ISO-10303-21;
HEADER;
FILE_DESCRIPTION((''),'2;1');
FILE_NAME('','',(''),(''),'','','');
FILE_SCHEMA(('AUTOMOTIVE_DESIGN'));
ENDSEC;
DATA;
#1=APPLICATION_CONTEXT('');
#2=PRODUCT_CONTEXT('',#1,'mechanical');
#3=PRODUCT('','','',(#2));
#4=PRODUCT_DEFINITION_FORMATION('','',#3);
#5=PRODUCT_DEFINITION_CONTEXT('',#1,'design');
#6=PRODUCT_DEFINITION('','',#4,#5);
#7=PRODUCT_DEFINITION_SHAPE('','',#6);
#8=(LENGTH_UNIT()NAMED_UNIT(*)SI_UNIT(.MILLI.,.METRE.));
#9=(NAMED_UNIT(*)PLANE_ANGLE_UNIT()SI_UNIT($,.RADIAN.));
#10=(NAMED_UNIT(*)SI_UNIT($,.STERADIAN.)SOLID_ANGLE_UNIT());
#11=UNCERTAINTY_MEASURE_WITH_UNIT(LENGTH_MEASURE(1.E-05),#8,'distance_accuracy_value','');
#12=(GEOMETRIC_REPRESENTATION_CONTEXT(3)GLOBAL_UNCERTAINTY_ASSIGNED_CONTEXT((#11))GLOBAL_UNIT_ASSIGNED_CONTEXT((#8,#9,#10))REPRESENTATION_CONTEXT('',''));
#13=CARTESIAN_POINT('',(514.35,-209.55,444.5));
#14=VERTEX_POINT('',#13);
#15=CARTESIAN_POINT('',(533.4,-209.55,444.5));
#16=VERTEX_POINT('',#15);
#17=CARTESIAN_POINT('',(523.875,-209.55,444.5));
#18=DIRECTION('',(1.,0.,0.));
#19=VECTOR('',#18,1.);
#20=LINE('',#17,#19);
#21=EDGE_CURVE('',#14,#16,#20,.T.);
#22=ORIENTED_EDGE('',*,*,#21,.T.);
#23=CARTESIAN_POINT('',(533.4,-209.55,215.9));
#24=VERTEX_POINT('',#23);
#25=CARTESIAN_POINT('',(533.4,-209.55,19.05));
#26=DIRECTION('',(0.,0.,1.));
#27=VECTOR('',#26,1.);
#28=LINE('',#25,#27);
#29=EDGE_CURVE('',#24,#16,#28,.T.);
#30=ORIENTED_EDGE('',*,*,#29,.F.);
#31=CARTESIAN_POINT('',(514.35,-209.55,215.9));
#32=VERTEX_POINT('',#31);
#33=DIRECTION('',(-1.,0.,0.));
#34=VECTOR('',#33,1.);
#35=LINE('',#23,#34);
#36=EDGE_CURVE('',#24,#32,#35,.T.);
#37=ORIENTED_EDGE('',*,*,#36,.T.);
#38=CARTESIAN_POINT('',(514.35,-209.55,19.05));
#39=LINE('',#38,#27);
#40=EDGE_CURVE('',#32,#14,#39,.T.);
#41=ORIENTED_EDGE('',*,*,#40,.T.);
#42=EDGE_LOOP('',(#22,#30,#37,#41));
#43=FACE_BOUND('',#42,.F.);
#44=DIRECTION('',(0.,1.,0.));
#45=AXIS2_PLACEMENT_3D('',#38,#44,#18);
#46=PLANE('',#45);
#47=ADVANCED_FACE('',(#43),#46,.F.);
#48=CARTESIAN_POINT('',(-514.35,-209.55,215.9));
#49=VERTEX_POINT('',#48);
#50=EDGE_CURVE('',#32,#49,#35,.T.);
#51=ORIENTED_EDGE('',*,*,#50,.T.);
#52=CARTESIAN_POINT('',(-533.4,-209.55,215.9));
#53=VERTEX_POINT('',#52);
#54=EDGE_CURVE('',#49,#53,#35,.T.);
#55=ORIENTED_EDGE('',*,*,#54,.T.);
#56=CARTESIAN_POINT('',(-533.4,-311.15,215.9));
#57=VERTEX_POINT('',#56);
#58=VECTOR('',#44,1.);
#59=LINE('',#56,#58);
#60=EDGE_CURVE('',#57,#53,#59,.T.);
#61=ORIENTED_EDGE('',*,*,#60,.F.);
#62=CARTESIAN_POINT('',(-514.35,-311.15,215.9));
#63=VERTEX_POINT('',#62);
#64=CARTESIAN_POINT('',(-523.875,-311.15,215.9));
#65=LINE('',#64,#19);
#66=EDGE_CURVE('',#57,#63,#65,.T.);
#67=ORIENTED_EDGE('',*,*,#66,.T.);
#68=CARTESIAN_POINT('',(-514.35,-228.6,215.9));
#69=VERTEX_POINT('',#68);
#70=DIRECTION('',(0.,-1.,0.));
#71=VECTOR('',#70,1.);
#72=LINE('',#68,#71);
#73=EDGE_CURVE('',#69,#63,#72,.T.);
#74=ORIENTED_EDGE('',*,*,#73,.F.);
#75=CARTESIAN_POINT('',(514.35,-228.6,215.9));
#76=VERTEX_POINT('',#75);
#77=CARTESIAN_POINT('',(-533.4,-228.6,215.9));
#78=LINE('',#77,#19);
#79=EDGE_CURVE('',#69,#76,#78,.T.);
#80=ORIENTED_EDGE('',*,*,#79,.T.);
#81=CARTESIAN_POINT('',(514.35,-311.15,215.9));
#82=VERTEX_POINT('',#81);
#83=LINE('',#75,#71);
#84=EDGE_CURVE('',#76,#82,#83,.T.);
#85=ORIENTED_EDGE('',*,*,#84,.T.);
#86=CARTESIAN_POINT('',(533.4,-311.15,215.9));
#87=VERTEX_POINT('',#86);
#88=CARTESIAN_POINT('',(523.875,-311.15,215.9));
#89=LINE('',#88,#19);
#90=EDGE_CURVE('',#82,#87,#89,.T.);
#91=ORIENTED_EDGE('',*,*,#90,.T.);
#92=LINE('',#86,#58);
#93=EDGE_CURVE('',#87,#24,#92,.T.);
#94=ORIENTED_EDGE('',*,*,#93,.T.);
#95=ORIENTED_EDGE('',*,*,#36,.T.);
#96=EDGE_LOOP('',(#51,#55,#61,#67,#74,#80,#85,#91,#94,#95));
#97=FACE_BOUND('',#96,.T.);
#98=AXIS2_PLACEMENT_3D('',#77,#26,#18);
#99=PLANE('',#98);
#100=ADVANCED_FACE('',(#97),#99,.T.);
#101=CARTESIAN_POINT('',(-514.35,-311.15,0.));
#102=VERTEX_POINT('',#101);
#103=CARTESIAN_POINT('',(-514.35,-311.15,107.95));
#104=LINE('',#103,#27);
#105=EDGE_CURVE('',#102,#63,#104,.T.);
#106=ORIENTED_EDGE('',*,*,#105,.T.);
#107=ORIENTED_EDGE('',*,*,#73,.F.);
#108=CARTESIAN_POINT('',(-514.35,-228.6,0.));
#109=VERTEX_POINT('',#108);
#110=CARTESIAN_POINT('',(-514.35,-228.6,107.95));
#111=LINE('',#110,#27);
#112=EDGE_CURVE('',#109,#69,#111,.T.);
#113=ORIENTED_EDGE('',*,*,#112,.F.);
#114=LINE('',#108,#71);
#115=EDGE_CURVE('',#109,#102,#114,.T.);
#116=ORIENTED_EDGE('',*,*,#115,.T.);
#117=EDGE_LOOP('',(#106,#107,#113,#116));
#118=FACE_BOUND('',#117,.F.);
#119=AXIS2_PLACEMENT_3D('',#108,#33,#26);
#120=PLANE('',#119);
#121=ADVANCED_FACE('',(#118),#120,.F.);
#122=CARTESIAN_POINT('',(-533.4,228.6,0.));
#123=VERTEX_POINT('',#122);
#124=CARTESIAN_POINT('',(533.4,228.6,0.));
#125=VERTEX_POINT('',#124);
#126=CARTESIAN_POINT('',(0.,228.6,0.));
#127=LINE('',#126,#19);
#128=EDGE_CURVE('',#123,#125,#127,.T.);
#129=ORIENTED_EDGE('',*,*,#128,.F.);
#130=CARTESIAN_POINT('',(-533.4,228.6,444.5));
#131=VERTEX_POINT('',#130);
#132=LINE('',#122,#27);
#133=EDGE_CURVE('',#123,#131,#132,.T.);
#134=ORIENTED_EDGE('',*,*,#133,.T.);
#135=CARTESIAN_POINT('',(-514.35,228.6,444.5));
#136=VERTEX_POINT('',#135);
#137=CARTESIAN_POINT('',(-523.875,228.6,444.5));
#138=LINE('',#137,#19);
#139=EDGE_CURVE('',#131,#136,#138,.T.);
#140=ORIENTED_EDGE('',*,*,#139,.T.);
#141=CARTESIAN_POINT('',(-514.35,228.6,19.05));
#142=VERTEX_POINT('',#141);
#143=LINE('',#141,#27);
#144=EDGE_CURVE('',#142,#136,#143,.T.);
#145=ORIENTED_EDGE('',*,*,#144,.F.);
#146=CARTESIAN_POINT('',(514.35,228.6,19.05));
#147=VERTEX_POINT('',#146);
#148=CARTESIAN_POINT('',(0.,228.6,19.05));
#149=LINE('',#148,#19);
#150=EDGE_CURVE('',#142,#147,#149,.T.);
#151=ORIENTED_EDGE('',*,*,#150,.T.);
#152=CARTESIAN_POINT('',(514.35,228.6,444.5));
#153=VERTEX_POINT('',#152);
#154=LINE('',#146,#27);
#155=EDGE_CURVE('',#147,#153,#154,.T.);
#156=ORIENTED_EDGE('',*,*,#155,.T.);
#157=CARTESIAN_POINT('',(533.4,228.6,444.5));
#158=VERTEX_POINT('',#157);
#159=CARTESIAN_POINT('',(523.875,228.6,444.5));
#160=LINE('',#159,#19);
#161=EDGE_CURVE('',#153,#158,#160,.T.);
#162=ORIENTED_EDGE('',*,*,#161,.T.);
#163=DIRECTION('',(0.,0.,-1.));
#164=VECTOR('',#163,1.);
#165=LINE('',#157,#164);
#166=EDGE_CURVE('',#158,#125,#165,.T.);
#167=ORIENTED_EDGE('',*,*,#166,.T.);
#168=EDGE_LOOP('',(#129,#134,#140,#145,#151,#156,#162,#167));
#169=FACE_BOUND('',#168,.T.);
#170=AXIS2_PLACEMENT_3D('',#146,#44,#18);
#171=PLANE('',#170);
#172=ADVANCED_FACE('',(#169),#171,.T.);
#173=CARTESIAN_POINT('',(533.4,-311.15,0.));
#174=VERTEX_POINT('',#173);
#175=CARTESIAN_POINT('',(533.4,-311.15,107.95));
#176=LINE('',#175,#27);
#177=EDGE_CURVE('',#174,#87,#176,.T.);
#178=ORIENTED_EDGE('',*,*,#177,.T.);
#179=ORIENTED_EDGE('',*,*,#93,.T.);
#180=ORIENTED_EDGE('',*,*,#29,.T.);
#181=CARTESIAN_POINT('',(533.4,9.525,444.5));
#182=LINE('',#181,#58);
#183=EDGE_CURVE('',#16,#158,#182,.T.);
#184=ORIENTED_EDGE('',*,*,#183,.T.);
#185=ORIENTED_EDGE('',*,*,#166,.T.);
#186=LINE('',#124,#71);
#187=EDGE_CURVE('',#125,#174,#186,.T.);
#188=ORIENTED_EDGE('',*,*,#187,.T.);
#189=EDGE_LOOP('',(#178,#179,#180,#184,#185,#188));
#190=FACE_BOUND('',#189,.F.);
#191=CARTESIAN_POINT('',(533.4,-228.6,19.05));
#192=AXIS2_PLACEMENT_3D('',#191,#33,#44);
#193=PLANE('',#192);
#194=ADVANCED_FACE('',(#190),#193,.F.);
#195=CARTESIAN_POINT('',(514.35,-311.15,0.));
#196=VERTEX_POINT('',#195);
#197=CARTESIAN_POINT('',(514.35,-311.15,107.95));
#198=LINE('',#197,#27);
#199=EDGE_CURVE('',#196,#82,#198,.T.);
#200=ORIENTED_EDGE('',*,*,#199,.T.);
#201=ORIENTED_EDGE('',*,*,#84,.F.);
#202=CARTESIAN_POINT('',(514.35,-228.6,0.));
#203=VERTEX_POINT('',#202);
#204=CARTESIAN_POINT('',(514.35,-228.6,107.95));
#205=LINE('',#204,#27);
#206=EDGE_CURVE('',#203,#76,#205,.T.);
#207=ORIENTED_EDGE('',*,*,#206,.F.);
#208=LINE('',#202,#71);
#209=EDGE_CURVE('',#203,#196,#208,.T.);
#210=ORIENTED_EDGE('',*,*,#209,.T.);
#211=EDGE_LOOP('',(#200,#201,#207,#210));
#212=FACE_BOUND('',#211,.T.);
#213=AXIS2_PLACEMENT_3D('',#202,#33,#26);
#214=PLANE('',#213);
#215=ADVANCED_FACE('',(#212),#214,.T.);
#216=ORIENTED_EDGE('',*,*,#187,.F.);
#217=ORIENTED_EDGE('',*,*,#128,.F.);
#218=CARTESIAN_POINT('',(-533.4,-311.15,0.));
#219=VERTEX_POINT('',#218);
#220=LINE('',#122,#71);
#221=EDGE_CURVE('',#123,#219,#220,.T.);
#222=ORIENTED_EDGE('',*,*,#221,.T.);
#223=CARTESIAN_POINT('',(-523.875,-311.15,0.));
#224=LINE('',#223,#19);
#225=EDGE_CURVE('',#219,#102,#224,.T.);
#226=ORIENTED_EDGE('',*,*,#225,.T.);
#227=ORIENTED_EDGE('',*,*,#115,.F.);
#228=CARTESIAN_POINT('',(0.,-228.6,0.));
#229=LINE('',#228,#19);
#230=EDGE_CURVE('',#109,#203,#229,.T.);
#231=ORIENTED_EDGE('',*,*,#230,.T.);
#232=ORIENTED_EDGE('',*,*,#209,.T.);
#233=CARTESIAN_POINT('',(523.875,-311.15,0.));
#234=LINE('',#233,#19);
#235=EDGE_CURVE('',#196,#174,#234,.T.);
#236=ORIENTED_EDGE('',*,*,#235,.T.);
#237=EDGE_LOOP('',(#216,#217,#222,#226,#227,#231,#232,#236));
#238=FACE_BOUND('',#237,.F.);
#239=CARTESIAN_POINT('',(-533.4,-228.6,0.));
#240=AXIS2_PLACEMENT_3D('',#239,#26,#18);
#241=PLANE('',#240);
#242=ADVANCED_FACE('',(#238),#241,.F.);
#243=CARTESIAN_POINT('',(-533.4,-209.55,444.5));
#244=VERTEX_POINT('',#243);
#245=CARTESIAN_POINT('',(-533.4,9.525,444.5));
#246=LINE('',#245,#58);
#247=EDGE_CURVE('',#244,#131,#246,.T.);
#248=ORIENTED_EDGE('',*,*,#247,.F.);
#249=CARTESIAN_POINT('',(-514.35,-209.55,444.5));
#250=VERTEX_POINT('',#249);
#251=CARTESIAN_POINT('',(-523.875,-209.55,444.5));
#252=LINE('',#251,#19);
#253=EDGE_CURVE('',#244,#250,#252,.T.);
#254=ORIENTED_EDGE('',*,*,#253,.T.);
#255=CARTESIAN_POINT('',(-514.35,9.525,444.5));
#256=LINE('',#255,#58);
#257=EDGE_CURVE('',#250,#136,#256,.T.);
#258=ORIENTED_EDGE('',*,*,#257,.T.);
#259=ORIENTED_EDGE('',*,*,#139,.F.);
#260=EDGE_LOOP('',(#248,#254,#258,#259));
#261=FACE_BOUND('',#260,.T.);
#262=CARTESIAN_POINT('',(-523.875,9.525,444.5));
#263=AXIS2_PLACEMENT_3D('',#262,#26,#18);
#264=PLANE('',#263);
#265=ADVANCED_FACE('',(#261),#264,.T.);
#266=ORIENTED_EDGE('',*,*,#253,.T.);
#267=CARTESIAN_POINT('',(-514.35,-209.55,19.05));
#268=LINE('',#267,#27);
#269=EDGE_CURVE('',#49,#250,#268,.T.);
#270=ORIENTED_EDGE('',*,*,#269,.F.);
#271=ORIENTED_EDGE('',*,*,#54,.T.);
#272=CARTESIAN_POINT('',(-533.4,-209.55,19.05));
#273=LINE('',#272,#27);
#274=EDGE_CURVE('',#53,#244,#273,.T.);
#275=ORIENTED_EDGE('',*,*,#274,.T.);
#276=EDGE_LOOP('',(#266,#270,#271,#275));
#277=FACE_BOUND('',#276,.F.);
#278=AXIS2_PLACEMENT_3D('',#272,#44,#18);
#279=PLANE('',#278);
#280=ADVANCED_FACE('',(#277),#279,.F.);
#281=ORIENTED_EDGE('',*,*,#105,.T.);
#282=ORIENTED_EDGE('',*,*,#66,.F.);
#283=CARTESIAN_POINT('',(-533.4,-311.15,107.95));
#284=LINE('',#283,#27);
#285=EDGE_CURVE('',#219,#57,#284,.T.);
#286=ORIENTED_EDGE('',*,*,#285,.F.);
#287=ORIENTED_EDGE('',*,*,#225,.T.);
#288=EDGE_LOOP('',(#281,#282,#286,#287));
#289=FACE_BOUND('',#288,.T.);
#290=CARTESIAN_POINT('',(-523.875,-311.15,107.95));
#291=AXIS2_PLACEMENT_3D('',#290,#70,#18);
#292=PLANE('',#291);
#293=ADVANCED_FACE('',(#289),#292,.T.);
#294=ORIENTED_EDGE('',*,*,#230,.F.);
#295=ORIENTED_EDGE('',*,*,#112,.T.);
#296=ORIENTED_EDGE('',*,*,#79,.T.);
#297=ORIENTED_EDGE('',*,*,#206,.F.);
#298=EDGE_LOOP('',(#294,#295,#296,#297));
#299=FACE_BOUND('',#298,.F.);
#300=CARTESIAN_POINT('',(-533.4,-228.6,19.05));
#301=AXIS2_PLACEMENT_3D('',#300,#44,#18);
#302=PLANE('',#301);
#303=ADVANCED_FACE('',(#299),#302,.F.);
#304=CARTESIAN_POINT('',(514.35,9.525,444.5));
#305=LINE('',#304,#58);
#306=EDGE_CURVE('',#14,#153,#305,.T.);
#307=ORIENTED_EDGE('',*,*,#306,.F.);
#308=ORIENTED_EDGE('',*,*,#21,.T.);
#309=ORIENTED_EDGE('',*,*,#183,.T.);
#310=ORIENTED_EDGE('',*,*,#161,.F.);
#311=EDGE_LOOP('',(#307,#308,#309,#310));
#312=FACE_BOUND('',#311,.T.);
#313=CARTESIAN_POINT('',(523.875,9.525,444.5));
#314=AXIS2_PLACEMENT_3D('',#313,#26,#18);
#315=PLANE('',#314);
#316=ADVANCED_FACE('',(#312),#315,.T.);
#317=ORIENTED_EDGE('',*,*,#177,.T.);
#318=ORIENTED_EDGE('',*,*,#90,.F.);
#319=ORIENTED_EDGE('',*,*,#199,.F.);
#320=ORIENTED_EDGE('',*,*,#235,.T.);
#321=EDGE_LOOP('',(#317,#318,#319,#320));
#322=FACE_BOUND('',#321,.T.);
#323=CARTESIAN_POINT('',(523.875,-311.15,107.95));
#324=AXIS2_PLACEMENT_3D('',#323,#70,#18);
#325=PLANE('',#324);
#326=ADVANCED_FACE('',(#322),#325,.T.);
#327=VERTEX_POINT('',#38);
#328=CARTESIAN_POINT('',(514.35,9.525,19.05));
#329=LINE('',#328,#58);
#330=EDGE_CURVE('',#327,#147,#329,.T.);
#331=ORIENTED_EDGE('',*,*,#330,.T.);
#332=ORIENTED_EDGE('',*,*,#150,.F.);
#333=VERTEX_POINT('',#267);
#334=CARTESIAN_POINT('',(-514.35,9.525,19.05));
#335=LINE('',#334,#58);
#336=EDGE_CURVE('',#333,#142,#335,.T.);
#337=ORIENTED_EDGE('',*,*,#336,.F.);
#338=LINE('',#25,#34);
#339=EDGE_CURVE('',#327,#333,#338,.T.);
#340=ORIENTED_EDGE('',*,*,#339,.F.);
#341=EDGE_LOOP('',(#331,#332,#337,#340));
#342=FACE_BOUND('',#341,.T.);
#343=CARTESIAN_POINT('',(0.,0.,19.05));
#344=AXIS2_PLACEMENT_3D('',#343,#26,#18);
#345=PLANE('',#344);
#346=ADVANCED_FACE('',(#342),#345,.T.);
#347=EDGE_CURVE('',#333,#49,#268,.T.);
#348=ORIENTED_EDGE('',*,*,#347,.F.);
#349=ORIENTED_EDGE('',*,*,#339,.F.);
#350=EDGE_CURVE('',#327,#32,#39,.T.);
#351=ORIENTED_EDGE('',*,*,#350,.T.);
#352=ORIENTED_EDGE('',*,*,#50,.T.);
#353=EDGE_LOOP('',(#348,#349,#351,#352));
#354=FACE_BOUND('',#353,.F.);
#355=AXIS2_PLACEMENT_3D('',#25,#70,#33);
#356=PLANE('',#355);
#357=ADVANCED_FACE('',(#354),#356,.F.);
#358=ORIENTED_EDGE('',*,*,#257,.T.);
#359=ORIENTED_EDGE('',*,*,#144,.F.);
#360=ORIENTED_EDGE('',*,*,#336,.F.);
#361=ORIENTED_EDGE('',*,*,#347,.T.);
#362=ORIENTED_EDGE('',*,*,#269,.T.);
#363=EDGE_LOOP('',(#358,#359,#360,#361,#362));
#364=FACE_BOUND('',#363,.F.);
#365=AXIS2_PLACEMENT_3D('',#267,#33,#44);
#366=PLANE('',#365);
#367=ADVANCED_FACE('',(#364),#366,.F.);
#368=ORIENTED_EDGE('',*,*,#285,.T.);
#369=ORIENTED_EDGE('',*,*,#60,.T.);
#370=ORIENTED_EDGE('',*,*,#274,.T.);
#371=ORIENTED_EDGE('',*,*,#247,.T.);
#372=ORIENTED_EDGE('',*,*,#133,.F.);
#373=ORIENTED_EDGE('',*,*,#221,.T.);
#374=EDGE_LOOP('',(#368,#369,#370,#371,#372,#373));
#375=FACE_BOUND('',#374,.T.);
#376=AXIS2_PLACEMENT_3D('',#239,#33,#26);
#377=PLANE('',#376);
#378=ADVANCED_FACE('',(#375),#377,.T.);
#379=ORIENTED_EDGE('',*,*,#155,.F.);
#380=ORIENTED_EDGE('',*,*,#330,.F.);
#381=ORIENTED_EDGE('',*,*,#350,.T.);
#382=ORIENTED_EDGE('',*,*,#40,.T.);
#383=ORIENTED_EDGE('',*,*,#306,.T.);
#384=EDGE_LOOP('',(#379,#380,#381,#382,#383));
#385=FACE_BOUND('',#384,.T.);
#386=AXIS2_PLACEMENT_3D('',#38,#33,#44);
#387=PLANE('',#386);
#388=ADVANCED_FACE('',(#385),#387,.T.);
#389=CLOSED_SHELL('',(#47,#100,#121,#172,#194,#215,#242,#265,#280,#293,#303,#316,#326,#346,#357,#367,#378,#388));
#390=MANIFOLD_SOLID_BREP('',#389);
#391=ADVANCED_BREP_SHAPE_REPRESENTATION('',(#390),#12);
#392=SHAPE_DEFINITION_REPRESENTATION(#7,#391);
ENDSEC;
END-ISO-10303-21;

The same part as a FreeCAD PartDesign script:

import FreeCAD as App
import Part
import Sketcher
Q = App.Units.Quantity


def add_polygon(sketch, points):
    """Adds a closed chain of lines whose ends are joined by coincident constraints."""
    first, n = sketch.GeometryCount, len(points)
    for a, b in zip(points, points[1:] + points[:1]):
        sketch.addGeometry(Part.LineSegment(App.Vector(*a, 0), App.Vector(*b, 0)), False)
    for i in range(n):
        sketch.addConstraint(Sketcher.Constraint("Coincident", first + i, 2, first + (i + 1) % n, 1))

doc = App.newDocument("Part")
body = doc.addObject("PartDesign::Body", "Body")

# Sketch on XY plane
sketch1 = body.newObject("Sketcher::SketchObject", "Sketch")
sketch1.AttachmentSupport = (doc.getObject("XY_Plane"), [""])
sketch1.MapMode = "FlatFace"
add_polygon(sketch1, [(-533, 229), (-533, -229), (533, -229), (533, 229)])  # lines 0-3
sketch1.addConstraint([
    Sketcher.Constraint("Vertical", 0),
    Sketcher.Constraint("Horizontal", 1),
    Sketcher.Constraint("Vertical", 2),
    Sketcher.Constraint("Horizontal", 3),
    Sketcher.Constraint("Symmetric", 0, 2, 2, 2, -1, 1),
    Sketcher.Constraint("DistanceX", 1, 1, 1, 2, Q("42 in")),
    Sketcher.Constraint("DistanceY", 0, 2, 0, 1, Q("18 in")),
])
pad1 = body.newObject("PartDesign::Pad", "Pad")
pad1.Profile = sketch1
pad1.Length = Q("0.75 in")

# Sketch on XY plane
sketch2 = body.newObject("Sketcher::SketchObject", "Sketch001")
sketch2.AttachmentSupport = (doc.getObject("XY_Plane"), [""])
sketch2.MapMode = "FlatFace"
sketch2.AttachmentOffset = App.Placement(App.Vector(0, 0, 0.75 * 25.4), App.Rotation())
add_polygon(sketch2, [(514, 229), (514, -210), (533, -210), (533, 229)])  # lines 0-3
add_polygon(sketch2, [(-533, 229), (-533, -210), (-514, -210), (-514, 229)])  # lines 4-7
sketch2.addConstraint([
    Sketcher.Constraint("Vertical", 0),
    Sketcher.Constraint("Horizontal", 1),
    Sketcher.Constraint("Vertical", 2),
    Sketcher.Constraint("Horizontal", 3),
    Sketcher.Constraint("Vertical", 4),
    Sketcher.Constraint("Horizontal", 5),
    Sketcher.Constraint("Vertical", 6),
    Sketcher.Constraint("Horizontal", 7),
    Sketcher.Constraint("Symmetric", 1, 2, 4, 2, -2),
    Sketcher.Constraint("Symmetric", 3, 2, 6, 2, -2),
    Sketcher.Constraint("DistanceX", -1, 1, 1, 2, Q("21 in")),
    Sketcher.Constraint("DistanceY", -1, 1, 2, 2, Q("9 in")),
    Sketcher.Constraint("DistanceX", 1, 1, 1, 2, Q("0.75 in")),
    Sketcher.Constraint("DistanceY", 0, 2, 0, 1, Q("17.25 in")),
])
pad2 = body.newObject("PartDesign::Pad", "Pad001")
pad2.Profile = sketch2
pad2.Length = Q("16.75 in")

# Sketch on XY plane
sketch3 = body.newObject("Sketcher::SketchObject", "Sketch002")
sketch3.AttachmentSupport = (doc.getObject("XY_Plane"), [""])
sketch3.MapMode = "FlatFace"
sketch3.AttachmentOffset = App.Placement(App.Vector(0, 0, 0.75 * 25.4), App.Rotation())
add_polygon(sketch3, [(-533, -210), (-533, -229), (533, -229), (533, -210)])  # lines 0-3
sketch3.addConstraint([
    Sketcher.Constraint("Vertical", 0),
    Sketcher.Constraint("Horizontal", 1),
    Sketcher.Constraint("Vertical", 2),
    Sketcher.Constraint("Horizontal", 3),
    Sketcher.Constraint("DistanceX", 1, 1, 1, 2, Q("42 in")),
    Sketcher.Constraint("DistanceX", 0, 2, -1, 1, Q("21 in")),
    Sketcher.Constraint("DistanceY", 0, 2, -1, 1, Q("9 in")),
    Sketcher.Constraint("DistanceY", 0, 2, 0, 1, Q("0.75 in")),
])
pad3 = body.newObject("PartDesign::Pad", "Pad002")
pad3.Profile = sketch3
pad3.Length = Q("7.75 in")

# Sketch on XZ plane
sketch4 = body.newObject("Sketcher::SketchObject", "Sketch003")
sketch4.AttachmentSupport = (doc.getObject("XZ_Plane"), [""])
sketch4.MapMode = "FlatFace"
sketch4.AttachmentOffset = App.Placement(App.Vector(0, 0, 9 * 25.4), App.Rotation())
add_polygon(sketch4, [(-533, 216), (-533, 0), (-514, 0), (-514, 216)])  # lines 0-3
add_polygon(sketch4, [(514, 216), (514, 0), (533, 0), (533, 216)])  # lines 4-7
sketch4.addConstraint([
    Sketcher.Constraint("Vertical", 0),
    Sketcher.Constraint("Horizontal", 1),
    Sketcher.Constraint("Vertical", 2),
    Sketcher.Constraint("Horizontal", 3),
    Sketcher.Constraint("Vertical", 4),
    Sketcher.Constraint("Horizontal", 5),
    Sketcher.Constraint("Vertical", 6),
    Sketcher.Constraint("Horizontal", 7),
    Sketcher.Constraint("Symmetric", 1, 2, 4, 2, -1, 1),
    Sketcher.Constraint("Symmetric", 0, 2, 5, 2, -2),
    Sketcher.Constraint("Horizontal", 3, 2, 6, 2),
    Sketcher.Constraint("DistanceY", 0, 2, 0, 1, Q("8.5 in")),
    Sketcher.Constraint("DistanceX", 0, 2, -1, 1, Q("21 in")),
    Sketcher.Constraint("DistanceX", 1, 1, 1, 2, Q("0.75 in")),
])
pad4 = body.newObject("PartDesign::Pad", "Pad003")
pad4.Profile = sketch4
pad4.Length = Q("3.25 in")

doc.recompute()
